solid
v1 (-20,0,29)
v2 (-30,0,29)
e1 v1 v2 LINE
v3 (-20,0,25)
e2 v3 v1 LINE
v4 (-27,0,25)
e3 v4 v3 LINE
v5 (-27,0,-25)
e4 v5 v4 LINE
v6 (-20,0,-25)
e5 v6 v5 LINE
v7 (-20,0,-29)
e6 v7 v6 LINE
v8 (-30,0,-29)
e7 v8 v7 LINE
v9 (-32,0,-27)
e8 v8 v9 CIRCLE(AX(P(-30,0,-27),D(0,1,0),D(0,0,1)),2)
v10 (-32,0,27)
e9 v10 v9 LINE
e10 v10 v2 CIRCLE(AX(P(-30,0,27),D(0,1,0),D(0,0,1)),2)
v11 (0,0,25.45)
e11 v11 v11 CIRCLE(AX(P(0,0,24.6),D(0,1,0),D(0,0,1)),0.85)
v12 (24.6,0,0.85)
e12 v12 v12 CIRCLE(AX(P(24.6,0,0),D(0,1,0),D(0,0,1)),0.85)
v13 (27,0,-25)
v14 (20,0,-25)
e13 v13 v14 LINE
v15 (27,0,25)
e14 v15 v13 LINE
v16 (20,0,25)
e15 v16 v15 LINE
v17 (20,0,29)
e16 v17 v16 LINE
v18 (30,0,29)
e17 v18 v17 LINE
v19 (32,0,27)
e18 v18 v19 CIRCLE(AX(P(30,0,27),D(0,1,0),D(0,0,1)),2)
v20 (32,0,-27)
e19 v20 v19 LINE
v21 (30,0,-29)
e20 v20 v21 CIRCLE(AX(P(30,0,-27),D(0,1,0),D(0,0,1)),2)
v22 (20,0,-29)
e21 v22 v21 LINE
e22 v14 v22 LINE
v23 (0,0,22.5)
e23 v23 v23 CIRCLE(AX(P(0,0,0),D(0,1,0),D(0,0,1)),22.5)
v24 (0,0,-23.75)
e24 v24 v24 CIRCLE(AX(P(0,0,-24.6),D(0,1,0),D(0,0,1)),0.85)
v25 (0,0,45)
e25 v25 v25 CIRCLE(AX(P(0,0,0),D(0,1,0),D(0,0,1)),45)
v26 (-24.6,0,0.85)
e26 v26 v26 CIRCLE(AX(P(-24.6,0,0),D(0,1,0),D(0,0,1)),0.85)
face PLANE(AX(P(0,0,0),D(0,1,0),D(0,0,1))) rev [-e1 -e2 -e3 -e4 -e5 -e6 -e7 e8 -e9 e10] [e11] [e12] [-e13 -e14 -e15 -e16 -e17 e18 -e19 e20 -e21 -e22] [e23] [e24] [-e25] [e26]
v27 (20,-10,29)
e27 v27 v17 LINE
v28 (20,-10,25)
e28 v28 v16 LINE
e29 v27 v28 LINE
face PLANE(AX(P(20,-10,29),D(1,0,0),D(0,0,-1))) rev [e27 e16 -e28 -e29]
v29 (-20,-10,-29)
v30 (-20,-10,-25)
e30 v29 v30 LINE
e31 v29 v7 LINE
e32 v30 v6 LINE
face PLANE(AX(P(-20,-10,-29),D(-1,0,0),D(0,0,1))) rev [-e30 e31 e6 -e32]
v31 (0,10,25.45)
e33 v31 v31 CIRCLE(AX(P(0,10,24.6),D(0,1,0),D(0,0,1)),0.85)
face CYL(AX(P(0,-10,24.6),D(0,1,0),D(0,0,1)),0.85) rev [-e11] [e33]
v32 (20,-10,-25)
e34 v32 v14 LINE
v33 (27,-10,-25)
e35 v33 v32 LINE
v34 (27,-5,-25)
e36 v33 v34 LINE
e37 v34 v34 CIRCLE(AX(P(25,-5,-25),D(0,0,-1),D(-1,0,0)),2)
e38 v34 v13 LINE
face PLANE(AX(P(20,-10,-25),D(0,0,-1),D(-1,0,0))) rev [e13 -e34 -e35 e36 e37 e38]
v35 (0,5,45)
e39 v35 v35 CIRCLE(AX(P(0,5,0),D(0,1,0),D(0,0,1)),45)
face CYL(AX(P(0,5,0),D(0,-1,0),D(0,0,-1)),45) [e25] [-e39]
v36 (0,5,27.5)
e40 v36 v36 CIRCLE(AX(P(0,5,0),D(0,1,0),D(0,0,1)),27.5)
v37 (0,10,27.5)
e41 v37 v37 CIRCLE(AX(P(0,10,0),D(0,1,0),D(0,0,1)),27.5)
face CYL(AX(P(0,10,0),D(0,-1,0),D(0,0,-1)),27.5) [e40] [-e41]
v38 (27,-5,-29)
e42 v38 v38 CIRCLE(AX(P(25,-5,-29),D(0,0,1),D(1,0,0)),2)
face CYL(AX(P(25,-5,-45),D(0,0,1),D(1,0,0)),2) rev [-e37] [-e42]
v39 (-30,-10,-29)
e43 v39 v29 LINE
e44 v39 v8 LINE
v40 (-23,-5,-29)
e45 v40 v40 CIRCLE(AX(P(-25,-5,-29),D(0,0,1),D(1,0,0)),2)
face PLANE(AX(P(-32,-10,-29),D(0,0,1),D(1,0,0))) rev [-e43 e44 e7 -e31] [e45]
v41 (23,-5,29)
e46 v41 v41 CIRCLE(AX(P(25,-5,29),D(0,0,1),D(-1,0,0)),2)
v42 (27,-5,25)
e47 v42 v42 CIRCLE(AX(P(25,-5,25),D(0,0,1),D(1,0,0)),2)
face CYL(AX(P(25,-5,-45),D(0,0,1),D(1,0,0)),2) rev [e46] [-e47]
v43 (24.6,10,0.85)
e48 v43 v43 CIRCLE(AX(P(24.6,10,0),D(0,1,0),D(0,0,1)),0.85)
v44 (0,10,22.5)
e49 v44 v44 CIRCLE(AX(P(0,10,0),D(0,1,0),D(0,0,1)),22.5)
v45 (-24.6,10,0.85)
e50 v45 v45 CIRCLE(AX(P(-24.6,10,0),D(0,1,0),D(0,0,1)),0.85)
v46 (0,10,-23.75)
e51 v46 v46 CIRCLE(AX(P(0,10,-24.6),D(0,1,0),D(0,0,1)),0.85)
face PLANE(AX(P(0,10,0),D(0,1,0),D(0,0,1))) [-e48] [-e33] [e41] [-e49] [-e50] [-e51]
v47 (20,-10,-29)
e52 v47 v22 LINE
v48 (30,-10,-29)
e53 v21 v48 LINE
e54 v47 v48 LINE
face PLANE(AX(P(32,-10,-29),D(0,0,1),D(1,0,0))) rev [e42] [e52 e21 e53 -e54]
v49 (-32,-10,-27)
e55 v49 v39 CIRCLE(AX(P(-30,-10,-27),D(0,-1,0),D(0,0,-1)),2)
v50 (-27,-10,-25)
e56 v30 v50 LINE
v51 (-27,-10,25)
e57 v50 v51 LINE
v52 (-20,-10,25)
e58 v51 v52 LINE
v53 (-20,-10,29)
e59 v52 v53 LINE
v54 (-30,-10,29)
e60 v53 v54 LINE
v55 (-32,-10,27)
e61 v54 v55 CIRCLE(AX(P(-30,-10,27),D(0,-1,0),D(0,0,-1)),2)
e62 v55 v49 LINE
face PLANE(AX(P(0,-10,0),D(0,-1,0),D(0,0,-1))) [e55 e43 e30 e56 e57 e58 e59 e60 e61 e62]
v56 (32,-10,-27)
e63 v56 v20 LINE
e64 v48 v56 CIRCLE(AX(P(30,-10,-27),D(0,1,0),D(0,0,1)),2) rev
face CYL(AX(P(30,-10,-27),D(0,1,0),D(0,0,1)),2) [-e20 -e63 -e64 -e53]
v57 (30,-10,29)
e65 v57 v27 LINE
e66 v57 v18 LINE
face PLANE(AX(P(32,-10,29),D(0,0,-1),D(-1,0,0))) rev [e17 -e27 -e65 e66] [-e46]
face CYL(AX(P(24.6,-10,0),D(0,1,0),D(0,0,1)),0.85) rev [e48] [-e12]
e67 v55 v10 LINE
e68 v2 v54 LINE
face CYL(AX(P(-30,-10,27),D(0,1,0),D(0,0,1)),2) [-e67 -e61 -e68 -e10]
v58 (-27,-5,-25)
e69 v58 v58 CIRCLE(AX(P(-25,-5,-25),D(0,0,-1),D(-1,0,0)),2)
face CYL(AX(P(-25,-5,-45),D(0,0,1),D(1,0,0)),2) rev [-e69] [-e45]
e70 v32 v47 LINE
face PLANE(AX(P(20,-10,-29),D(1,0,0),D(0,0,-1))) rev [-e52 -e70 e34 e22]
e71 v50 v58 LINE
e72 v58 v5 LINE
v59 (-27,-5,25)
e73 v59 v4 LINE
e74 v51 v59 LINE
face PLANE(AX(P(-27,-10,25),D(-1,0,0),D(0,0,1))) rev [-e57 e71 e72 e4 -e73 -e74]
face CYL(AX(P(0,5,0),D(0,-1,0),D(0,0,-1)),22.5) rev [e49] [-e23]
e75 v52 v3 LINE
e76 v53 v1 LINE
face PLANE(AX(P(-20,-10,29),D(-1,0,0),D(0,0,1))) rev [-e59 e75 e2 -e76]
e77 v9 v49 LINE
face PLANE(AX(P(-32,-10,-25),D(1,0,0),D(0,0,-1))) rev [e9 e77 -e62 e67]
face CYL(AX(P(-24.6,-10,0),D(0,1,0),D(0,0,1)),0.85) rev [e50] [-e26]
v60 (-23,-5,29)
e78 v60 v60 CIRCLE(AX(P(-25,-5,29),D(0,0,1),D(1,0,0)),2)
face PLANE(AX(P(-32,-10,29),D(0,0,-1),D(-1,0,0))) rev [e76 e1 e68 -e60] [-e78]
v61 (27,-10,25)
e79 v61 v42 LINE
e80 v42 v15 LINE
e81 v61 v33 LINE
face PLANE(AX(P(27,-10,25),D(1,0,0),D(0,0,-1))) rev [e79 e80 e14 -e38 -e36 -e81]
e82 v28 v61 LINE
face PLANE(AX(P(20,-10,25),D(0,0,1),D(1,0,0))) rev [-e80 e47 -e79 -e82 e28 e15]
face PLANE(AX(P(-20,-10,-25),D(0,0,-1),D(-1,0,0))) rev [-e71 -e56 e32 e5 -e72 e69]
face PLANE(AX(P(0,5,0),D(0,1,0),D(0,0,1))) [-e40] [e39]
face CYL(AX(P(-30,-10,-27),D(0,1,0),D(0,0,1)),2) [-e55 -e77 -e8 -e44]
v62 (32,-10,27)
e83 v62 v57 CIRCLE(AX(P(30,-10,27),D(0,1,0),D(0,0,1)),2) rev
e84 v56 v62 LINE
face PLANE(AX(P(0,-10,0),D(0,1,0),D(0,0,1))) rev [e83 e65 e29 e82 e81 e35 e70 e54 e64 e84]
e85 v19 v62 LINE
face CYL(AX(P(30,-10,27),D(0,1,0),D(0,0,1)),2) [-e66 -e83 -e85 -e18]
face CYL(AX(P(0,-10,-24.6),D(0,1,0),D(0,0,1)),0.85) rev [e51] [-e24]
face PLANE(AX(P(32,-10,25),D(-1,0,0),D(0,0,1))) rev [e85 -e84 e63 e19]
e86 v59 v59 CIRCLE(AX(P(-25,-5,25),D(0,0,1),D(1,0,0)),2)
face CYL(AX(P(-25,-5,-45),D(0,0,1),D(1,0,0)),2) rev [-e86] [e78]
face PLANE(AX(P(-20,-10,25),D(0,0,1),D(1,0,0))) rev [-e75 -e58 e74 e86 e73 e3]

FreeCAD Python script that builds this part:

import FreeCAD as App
import Part
import Sketcher
Q = App.Units.Quantity


def edges_at(feature, points):
    """Names of the edges that pass closest to the given points."""
    edges = feature.Shape.Edges
    near = lambda p: min(range(len(edges)), key=lambda i: edges[i].distToShape(Part.Vertex(*p))[0])
    return sorted({f"Edge{near(p) + 1}" for p in points})


def add_polygon(sketch, points):
    """Adds a closed chain of lines whose ends are joined by coincident constraints."""
    first, n = sketch.GeometryCount, len(points)
    for a, b in zip(points, points[1:] + points[:1]):
        sketch.addGeometry(Part.LineSegment(App.Vector(*a, 0), App.Vector(*b, 0)), False)
    for i in range(n):
        sketch.addConstraint(Sketcher.Constraint("Coincident", first + i, 2, first + (i + 1) % n, 1))

doc = App.newDocument("Part")
body = doc.addObject("PartDesign::Body", "Body")

# Sketch on XZ plane
sketch1 = body.newObject("Sketcher::SketchObject", "Sketch")
sketch1.AttachmentSupport = (doc.getObject("XZ_Plane"), [""])
sketch1.MapMode = "FlatFace"
sketch1.addGeometry([
    Part.Circle(App.Vector(0, 0, 0), App.Vector(0, 0, 1), 45),
    Part.Circle(App.Vector(0, 0, 0), App.Vector(0, 0, 1), 22),
], False)
sketch1.addConstraint([
    Sketcher.Constraint("Coincident", 0, 3, -1, 1),
    Sketcher.Constraint("Coincident", 1, 3, -1, 1),
    Sketcher.Constraint("Diameter", 0, Q("90 mm")),
    Sketcher.Constraint("Diameter", 1, Q("45 mm")),
])
pad1 = body.newObject("PartDesign::Pad", "Pad")
pad1.Profile = sketch1
pad1.Length = 5
pad1.Reversed = True

# Sketch on XZ plane
sketch2 = body.newObject("Sketcher::SketchObject", "Sketch001")
sketch2.AttachmentSupport = (doc.getObject("XZ_Plane"), [""])
sketch2.MapMode = "FlatFace"
add_polygon(sketch2, [(-27, -25), (-27, 25), (-20, 25), (-20, 29), (-32, 29), (-32, -29), (-20, -29), (-20, -25)])  # lines 0-7
add_polygon(sketch2, [(20, -25), (20, -29), (32, -29), (32, 29), (20, 29), (20, 25), (27, 25), (27, -25)])  # lines 8-15
sketch2.addConstraint([
    Sketcher.Constraint("Vertical", 0),
    Sketcher.Constraint("Horizontal", 1),
    Sketcher.Constraint("Vertical", 2),
    Sketcher.Constraint("Horizontal", 3),
    Sketcher.Constraint("Vertical", 4),
    Sketcher.Constraint("Horizontal", 5),
    Sketcher.Constraint("Vertical", 6),
    Sketcher.Constraint("Horizontal", 7),
    Sketcher.Constraint("Vertical", 8),
    Sketcher.Constraint("Horizontal", 9),
    Sketcher.Constraint("Vertical", 10),
    Sketcher.Constraint("Horizontal", 11),
    Sketcher.Constraint("Vertical", 12),
    Sketcher.Constraint("Horizontal", 13),
    Sketcher.Constraint("Vertical", 14),
    Sketcher.Constraint("Horizontal", 15),
    Sketcher.Constraint("Symmetric", 2, 2, 8, 2, -1, 1),
    Sketcher.Constraint("Symmetric", 4, 2, 10, 2, -1, 1),
    Sketcher.Constraint("Symmetric", 6, 2, 12, 2, -1, 1),
    Sketcher.Constraint("Symmetric", 0, 2, 14, 2, -1, 1),
    Sketcher.Constraint("Symmetric", 5, 2, 8, 2, -2),
    Sketcher.Constraint("Horizontal", 1, 2, 12, 2),
    Sketcher.Constraint("DistanceX", 1, 1, 1, 2, Q("7 mm")),
    Sketcher.Constraint("DistanceX", 3, 2, 3, 1, Q("12 mm")),
    Sketcher.Constraint("DistanceY", 0, 1, 0, 2, Q("50 mm")),
    Sketcher.Constraint("DistanceY", 2, 1, 2, 2, Q("4 mm")),
    Sketcher.Constraint("DistanceX", 0, 2, -1, 1, Q("27 mm")),
])
pad2 = body.newObject("PartDesign::Pad", "Pad001")
pad2.Profile = sketch2
pad2.Length = 10
doc.recompute()

fillet = body.newObject("PartDesign::Fillet", "Fillet")
fillet.Base = (pad2, edges_at(pad2, [
    (-32, -5, 29),
    (-32, -5, -29),
    (32, -5, -29),
    (32, -5, 29),
]))
fillet.Radius = 2

# Sketch on XY plane
sketch3 = body.newObject("Sketcher::SketchObject", "Sketch002")
sketch3.AttachmentSupport = (doc.getObject("XY_Plane"), [""])
sketch3.MapMode = "FlatFace"
sketch3.AttachmentOffset = App.Placement(App.Vector(0, 0, 29), App.Rotation())
sketch3.addGeometry([
    Part.Circle(App.Vector(-25, -5, 0), App.Vector(0, 0, 1), 2),
    Part.Circle(App.Vector(25, -5, 0), App.Vector(0, 0, 1), 2),
], False)
sketch3.addConstraint([
    Sketcher.Constraint("Equal", 0, 1),
    Sketcher.Constraint("Symmetric", 0, 3, 1, 3, -2),
    Sketcher.Constraint("Diameter", 0, Q("4 mm")),
    Sketcher.Constraint("DistanceX", 0, 3, -1, 1, Q("25 mm")),
    Sketcher.Constraint("DistanceY", 0, 3, -1, 1, Q("5 mm")),
])
pocket1 = body.newObject("PartDesign::Pocket", "Pocket")
pocket1.Profile = sketch3
pocket1.Type = "ThroughAll"

# Sketch on XZ plane
sketch4 = body.newObject("Sketcher::SketchObject", "Sketch003")
sketch4.AttachmentSupport = (doc.getObject("XZ_Plane"), [""])
sketch4.MapMode = "FlatFace"
sketch4.AttachmentOffset = App.Placement(App.Vector(0, 0, -5), App.Rotation())
sketch4.addGeometry([
    Part.Circle(App.Vector(0, 0, 0), App.Vector(0, 0, 1), 28),
    Part.Circle(App.Vector(0, 0, 0), App.Vector(0, 0, 1), 22),
], False)
sketch4.addConstraint([
    Sketcher.Constraint("Coincident", 0, 3, -1, 1),
    Sketcher.Constraint("Coincident", 1, 3, -1, 1),
    Sketcher.Constraint("Diameter", 0, Q("55 mm")),
    Sketcher.Constraint("Diameter", 1, Q("45 mm")),
])
pad3 = body.newObject("PartDesign::Pad", "Pad002")
pad3.Profile = sketch4
pad3.Length = 5
pad3.Reversed = True

# Sketch on XZ plane
sketch5 = body.newObject("Sketcher::SketchObject", "Sketch004")
sketch5.AttachmentSupport = (doc.getObject("XZ_Plane"), [""])
sketch5.MapMode = "FlatFace"
sketch5.AttachmentOffset = App.Placement(App.Vector(0, 0, -10), App.Rotation())
sketch5.addGeometry([
    Part.Circle(App.Vector(0, -24.6, 0), App.Vector(0, 0, 1), 0.8),
    Part.Circle(App.Vector(24.6, 0, 0), App.Vector(0, 0, 1), 0.8),
    Part.Circle(App.Vector(0, 24.6, 0), App.Vector(0, 0, 1), 0.8),
    Part.Circle(App.Vector(-24.6, 0, 0), App.Vector(0, 0, 1), 0.8),
], False)
sketch5.addConstraint([
    Sketcher.Constraint("Equal", 0, 1),
    Sketcher.Constraint("Equal", 1, 2),
    Sketcher.Constraint("Equal", 2, 3),
    Sketcher.Constraint("Symmetric", 0, 3, 2, 3, -1, 1),
    Sketcher.Constraint("Symmetric", 1, 3, 3, 3, -1, 1),
    Sketcher.Constraint("PointOnObject", 0, 3, -2),
    Sketcher.Constraint("PointOnObject", 1, 3, -1),
    Sketcher.Constraint("Diameter", 0, Q("1.7 mm")),
    Sketcher.Constraint("DistanceY", 0, 3, -1, 1, Q("24.6 mm")),
    Sketcher.Constraint("DistanceX", -1, 1, 1, 3, Q("24.6 mm")),
])
pocket2 = body.newObject("PartDesign::Pocket", "Pocket001")
pocket2.Profile = sketch5
pocket2.Type = "ThroughAll"
pocket2.Reversed = True

doc.recompute()
